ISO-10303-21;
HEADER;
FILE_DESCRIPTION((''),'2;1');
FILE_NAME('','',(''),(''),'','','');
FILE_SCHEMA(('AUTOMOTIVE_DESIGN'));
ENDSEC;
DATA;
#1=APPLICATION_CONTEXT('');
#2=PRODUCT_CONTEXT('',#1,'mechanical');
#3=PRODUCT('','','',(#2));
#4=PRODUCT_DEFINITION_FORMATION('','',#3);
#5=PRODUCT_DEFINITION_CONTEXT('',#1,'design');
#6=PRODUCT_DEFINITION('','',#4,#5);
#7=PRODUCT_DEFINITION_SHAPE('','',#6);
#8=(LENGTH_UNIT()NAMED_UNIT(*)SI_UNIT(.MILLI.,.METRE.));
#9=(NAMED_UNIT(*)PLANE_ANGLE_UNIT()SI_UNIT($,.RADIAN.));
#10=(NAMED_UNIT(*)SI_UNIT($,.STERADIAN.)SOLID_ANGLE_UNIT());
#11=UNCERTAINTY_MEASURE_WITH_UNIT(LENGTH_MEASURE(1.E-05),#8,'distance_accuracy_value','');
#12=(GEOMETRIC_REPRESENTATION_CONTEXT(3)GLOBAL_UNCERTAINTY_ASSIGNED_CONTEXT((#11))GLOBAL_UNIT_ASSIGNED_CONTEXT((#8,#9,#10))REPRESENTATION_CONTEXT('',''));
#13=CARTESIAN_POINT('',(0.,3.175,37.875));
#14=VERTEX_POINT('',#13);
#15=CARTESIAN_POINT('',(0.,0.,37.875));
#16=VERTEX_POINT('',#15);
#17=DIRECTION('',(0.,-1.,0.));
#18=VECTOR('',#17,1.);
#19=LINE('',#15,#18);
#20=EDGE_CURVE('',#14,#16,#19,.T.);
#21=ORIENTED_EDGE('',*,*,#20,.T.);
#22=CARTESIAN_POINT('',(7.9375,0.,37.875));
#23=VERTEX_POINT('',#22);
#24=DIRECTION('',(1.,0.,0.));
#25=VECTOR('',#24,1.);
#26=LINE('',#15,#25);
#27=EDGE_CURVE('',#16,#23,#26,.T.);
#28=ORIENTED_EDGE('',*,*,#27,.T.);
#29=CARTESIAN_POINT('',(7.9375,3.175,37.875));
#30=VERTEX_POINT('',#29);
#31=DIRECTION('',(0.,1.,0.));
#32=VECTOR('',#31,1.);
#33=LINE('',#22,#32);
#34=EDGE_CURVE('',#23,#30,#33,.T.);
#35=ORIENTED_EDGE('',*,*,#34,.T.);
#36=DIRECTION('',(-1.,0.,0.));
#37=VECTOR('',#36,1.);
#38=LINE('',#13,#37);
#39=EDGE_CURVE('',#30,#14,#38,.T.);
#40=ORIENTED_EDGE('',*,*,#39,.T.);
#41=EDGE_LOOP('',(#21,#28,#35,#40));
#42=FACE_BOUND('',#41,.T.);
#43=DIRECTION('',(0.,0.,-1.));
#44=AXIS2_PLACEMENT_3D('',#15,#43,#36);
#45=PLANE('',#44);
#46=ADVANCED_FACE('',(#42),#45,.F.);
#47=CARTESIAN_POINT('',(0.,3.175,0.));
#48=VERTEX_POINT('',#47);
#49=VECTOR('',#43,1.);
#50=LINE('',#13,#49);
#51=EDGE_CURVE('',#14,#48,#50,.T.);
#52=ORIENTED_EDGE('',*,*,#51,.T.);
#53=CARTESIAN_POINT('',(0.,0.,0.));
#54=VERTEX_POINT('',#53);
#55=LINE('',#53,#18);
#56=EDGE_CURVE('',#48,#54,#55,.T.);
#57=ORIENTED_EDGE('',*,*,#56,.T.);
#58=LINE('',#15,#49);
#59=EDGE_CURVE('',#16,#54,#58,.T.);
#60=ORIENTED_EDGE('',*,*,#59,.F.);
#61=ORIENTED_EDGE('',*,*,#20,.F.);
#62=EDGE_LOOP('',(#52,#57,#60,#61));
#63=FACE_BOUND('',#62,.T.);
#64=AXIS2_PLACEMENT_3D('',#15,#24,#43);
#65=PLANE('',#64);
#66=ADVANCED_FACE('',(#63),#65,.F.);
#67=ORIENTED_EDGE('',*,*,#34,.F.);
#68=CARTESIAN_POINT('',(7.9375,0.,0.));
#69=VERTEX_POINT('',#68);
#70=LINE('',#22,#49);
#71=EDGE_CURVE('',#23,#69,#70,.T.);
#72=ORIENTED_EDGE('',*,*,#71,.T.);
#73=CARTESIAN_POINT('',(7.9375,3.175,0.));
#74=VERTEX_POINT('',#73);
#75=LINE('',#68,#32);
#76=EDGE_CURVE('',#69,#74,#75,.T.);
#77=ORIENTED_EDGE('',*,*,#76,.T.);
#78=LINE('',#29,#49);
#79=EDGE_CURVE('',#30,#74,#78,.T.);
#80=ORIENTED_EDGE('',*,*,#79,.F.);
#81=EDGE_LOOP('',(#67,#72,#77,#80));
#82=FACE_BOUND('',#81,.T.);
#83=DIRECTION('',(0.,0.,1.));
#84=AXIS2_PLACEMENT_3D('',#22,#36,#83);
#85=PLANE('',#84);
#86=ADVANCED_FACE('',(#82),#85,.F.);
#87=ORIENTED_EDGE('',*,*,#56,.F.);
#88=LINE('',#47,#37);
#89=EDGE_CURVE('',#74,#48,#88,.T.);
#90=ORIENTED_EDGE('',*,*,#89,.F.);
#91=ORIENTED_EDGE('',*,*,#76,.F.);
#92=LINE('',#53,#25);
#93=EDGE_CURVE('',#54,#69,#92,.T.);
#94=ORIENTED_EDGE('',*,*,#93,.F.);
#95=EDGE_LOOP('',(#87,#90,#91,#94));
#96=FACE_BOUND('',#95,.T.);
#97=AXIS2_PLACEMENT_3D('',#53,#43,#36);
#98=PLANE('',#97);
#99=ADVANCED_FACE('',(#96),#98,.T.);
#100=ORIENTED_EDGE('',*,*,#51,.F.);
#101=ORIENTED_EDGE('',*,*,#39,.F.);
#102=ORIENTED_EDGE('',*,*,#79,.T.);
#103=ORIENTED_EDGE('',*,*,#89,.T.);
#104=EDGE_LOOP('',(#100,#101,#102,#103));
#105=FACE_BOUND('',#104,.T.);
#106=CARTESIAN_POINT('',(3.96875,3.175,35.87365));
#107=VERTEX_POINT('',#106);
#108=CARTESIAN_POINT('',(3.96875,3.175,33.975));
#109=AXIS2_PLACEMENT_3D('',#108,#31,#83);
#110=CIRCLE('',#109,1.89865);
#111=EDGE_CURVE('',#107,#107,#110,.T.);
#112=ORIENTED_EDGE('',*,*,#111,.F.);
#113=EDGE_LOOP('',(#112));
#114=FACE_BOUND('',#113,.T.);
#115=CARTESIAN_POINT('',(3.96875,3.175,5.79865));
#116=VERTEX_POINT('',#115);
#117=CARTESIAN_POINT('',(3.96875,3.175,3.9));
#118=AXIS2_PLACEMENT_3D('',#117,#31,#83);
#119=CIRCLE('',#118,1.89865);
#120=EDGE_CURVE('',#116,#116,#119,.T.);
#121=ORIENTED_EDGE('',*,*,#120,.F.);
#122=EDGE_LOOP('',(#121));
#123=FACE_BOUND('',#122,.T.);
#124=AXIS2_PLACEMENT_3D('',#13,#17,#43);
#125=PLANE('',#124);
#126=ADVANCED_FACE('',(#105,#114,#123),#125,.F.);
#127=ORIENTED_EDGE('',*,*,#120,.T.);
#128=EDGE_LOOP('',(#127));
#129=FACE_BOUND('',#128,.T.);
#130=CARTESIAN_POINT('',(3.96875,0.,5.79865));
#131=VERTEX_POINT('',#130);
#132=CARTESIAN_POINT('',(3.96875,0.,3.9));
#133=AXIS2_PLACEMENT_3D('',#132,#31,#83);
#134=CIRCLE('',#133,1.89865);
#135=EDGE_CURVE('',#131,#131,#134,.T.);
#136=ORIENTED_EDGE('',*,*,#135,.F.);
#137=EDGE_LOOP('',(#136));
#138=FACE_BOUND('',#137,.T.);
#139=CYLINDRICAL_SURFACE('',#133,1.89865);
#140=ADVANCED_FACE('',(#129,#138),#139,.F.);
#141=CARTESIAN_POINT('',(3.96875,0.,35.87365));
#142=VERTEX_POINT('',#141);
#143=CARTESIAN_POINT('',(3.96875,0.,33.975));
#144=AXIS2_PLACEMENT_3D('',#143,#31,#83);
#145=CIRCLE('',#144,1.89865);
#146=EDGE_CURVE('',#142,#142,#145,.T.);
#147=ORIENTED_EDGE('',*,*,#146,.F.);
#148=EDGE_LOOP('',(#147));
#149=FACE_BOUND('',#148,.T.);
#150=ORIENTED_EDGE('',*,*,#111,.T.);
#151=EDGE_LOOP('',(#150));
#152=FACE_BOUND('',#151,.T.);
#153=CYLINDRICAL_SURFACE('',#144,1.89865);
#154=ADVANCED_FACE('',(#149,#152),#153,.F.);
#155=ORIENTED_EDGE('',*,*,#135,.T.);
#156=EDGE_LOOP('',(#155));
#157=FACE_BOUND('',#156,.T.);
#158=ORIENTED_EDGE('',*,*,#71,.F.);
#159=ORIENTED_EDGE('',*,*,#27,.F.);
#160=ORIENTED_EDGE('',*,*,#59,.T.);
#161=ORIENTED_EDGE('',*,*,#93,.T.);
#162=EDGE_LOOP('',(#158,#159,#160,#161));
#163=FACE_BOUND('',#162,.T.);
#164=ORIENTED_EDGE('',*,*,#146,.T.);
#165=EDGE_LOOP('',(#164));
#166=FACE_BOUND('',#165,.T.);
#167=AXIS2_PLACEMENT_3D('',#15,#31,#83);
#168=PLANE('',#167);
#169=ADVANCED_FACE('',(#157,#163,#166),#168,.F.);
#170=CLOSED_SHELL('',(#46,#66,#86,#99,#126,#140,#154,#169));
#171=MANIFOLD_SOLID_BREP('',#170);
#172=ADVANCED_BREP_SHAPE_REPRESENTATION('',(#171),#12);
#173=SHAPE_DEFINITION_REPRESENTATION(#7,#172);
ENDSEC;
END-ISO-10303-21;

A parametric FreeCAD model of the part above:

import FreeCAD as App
import Part
import Sketcher
from FreeCAD import Vector
Q = App.Units.Quantity

doc = App.newDocument("Part")
body = doc.addObject("PartDesign::Body", "Body")

# Sketch on XY plane
sketch1 = body.newObject("Sketcher::SketchObject", "Sketch")
sketch1.AttachmentSupport = (doc.getObject("XY_Plane"), [""])
sketch1.MapMode = "FlatFace"
sketch1.addGeometry([
    Part.LineSegment(Vector(0, 3.2, 0), Vector(0, 0, 0)),
    Part.LineSegment(Vector(0, 0, 0), Vector(7.9, 0, 0)),
    Part.LineSegment(Vector(7.9, 0, 0), Vector(7.9, 3.2, 0)),
    Part.LineSegment(Vector(7.9, 3.2, 0), Vector(0, 3.2, 0)),
], False)
sketch1.addConstraint([
    Sketcher.Constraint("Coincident", 0, 2, 1, 1),
    Sketcher.Constraint("Coincident", 1, 2, 2, 1),
    Sketcher.Constraint("Coincident", 2, 2, 3, 1),
    Sketcher.Constraint("Coincident", 3, 2, 0, 1),
    Sketcher.Constraint("Vertical", 0),
    Sketcher.Constraint("Horizontal", 1),
    Sketcher.Constraint("Vertical", 2),
    Sketcher.Constraint("Horizontal", 3),
    Sketcher.Constraint("Coincident", 0, 2, -1, 1),
    Sketcher.Constraint("DistanceX", 1, 1, 1, 2, Q("0.3125 in")),
    Sketcher.Constraint("DistanceY", 0, 2, 0, 1, Q("0.125 in")),
])
pad1 = body.newObject("PartDesign::Pad", "Pad")
pad1.Profile = sketch1
pad1.Length = 37.875

# Sketch on XZ plane
sketch2 = body.newObject("Sketcher::SketchObject", "Sketch001")
sketch2.AttachmentSupport = (doc.getObject("XZ_Plane"), [""])
sketch2.MapMode = "FlatFace"
sketch2.AttachmentOffset = App.Placement(Vector(0, 0, -0.125 * 25.4), App.Rotation())
sketch2.addGeometry([
    Part.Circle(Vector(4, 3.9, 0), Vector(0, 0, 1), 1.9),
    Part.Circle(Vector(4, 34, 0), Vector(0, 0, 1), 1.9),
], False)
sketch2.addConstraint([
    Sketcher.Constraint("Equal", 0, 1),
    Sketcher.Constraint("Vertical", 0, 3, 1, 3),
    Sketcher.Constraint("Diameter", 0, Q("0.1495 in")),
    Sketcher.Constraint("DistanceX", -1, 1, 0, 3, Q("0.15625 in")),
    Sketcher.Constraint("DistanceY", -1, 1, 0, 3, 3.9),
    Sketcher.Constraint("DistanceY", -1, 1, 1, 3, 33.975),
])
pocket1 = body.newObject("PartDesign::Pocket", "Pocket")
pocket1.Profile = sketch2
pocket1.Type = "ThroughAll"
pocket1.Reversed = True

doc.recompute()
